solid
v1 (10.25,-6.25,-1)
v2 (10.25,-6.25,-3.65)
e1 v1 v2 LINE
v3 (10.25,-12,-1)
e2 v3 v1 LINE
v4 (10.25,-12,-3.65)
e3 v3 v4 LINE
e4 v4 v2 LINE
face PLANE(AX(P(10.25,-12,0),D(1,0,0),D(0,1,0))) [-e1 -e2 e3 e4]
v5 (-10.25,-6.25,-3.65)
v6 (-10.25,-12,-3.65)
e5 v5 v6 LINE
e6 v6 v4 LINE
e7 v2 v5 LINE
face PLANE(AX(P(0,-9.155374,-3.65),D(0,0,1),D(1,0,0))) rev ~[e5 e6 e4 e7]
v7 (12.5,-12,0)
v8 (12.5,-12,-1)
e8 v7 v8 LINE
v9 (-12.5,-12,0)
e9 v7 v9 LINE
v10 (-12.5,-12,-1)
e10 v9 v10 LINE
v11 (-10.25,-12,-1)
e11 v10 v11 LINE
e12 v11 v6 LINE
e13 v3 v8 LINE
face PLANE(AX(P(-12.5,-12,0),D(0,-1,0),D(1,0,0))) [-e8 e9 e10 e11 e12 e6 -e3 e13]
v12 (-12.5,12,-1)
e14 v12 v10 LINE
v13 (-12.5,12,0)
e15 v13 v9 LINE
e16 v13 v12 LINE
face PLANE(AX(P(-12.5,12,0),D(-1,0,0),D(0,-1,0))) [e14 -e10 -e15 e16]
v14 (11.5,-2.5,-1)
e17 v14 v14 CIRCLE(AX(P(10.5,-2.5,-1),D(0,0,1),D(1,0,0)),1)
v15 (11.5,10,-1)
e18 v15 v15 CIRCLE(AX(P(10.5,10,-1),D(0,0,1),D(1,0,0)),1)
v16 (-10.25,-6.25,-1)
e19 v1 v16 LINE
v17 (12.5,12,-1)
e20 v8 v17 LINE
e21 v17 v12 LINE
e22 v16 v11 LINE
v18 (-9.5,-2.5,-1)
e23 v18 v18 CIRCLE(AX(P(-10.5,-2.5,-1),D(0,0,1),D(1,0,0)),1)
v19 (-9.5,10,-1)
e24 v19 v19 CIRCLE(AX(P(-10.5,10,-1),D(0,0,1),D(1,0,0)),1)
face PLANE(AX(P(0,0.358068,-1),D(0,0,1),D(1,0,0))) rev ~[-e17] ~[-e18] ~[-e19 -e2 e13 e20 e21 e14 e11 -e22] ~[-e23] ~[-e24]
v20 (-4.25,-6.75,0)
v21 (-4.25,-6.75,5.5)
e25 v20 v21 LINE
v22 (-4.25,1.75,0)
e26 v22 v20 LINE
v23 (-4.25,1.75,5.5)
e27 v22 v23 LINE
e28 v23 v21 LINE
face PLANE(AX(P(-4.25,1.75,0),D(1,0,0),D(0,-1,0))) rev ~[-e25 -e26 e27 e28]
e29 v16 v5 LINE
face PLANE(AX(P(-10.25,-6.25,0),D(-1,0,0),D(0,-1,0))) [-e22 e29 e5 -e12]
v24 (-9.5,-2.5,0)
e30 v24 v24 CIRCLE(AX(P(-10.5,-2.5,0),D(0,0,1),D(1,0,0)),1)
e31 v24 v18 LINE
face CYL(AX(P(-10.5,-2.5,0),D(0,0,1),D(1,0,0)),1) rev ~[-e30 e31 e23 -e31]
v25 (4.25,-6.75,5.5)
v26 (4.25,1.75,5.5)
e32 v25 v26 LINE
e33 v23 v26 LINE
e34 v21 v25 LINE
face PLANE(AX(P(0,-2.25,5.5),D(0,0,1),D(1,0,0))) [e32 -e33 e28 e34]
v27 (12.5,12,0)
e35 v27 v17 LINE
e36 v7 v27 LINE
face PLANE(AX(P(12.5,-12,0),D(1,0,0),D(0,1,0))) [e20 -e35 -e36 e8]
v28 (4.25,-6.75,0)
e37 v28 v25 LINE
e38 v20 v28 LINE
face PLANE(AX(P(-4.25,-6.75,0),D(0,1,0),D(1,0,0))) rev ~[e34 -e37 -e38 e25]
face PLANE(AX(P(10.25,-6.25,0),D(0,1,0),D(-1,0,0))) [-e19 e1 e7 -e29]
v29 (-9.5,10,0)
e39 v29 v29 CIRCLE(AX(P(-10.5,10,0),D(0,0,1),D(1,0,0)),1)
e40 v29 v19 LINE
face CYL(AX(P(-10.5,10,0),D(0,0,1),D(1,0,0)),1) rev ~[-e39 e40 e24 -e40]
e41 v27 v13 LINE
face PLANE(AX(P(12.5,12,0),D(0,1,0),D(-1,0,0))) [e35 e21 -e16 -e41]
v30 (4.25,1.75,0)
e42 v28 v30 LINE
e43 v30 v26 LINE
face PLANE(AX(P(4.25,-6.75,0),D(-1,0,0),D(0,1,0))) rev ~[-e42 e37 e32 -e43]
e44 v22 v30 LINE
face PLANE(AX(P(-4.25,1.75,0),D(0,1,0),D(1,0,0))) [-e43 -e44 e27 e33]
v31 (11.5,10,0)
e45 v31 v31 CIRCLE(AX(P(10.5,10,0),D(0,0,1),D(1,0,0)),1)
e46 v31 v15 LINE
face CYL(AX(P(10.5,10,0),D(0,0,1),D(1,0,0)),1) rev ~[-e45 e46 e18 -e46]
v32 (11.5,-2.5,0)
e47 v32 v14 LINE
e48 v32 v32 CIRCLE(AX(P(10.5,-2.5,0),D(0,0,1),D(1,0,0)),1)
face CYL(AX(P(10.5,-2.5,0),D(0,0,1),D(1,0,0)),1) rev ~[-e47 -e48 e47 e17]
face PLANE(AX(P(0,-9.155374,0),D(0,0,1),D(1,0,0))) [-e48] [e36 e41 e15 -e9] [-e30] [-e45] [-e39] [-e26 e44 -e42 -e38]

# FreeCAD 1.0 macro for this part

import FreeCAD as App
import Part
import Sketcher

doc = App.newDocument("Part")
body = doc.addObject("PartDesign::Body", "Body")

# Sketch on XY plane
sketch1 = body.newObject("Sketcher::SketchObject", "Sketch")
sketch1.AttachmentSupport = (doc.getObject("XY_Plane"), [""])
sketch1.MapMode = "FlatFace"
sketch1.addGeometry([
    Part.LineSegment(App.Vector(12.5, -12, 0), App.Vector(12.5, 12, 0)),  # 0
    Part.LineSegment(App.Vector(12.5, 12, 0), App.Vector(-12.5, 12, 0)),  # 1
    Part.LineSegment(App.Vector(-12.5, 12, 0), App.Vector(-12.5, -12, 0)),  # 2
    Part.LineSegment(App.Vector(-12.5, -12, 0), App.Vector(12.5, -12, 0)),  # 3
    Part.Circle(App.Vector(-10.5, -2.5, 0), App.Vector(0, 0, 1), 1),  # 4
    Part.Circle(App.Vector(10.5, -2.5, 0), App.Vector(0, 0, 1), 1),  # 5
    Part.Circle(App.Vector(-10.5, 10, 0), App.Vector(0, 0, 1), 1),  # 6
    Part.Circle(App.Vector(10.5, 10, 0), App.Vector(0, 0, 1), 1),  # 7
], False)
sketch1.addConstraint([
    Sketcher.Constraint("Coincident", 0, 2, 1, 1),
    Sketcher.Constraint("Coincident", 1, 2, 2, 1),
    Sketcher.Constraint("Coincident", 2, 2, 3, 1),
    Sketcher.Constraint("Coincident", 3, 2, 0, 1),
    Sketcher.Constraint("Vertical", 0),
    Sketcher.Constraint("Horizontal", 1),
    Sketcher.Constraint("Vertical", 2),
    Sketcher.Constraint("Horizontal", 3),
    Sketcher.Constraint("Equal", 4, 5),
    Sketcher.Constraint("Equal", 5, 6),
    Sketcher.Constraint("Equal", 6, 7),
    Sketcher.Constraint("Symmetric", 0, 2, 2, 2, -1, 1),
    Sketcher.Constraint("Symmetric", 4, 3, 5, 3, -2),
    Sketcher.Constraint("Symmetric", 6, 3, 7, 3, -2),
    Sketcher.Constraint("Vertical", 4, 3, 6, 3),
    Sketcher.Constraint("Diameter", 4, 2.0),
    Sketcher.Constraint("DistanceX", 1, 2, 1, 1, 25.0),
    Sketcher.Constraint("DistanceY", 0, 1, 0, 2, 24.0),
    Sketcher.Constraint("DistanceY", -1, 1, 6, 3, 10.0),
    Sketcher.Constraint("DistanceX", 4, 3, 5, 3, 21.0),
    Sketcher.Constraint("DistanceY", 4, 3, -1, 1, 2.5),
])
pad1 = body.newObject("PartDesign::Pad", "Pad")
pad1.Profile = sketch1
pad1.Length = 1
pad1.Reversed = True

# Sketch on XY plane
sketch2 = body.newObject("Sketcher::SketchObject", "Sketch001")
sketch2.AttachmentSupport = (doc.getObject("XY_Plane"), [""])
sketch2.MapMode = "FlatFace"
sketch2.addGeometry([
    Part.LineSegment(App.Vector(-10, -12, 0), App.Vector(10, -12, 0)),
    Part.LineSegment(App.Vector(10, -12, 0), App.Vector(10, -6, 0)),
    Part.LineSegment(App.Vector(10, -6, 0), App.Vector(-10, -6, 0)),
    Part.LineSegment(App.Vector(-10, -6, 0), App.Vector(-10, -12, 0)),
], False)
sketch2.addConstraint([
    Sketcher.Constraint("Coincident", 0, 2, 1, 1),
    Sketcher.Constraint("Coincident", 1, 2, 2, 1),
    Sketcher.Constraint("Coincident", 2, 2, 3, 1),
    Sketcher.Constraint("Coincident", 3, 2, 0, 1),
    Sketcher.Constraint("Horizontal", 0),
    Sketcher.Constraint("Vertical", 1),
    Sketcher.Constraint("Horizontal", 2),
    Sketcher.Constraint("Vertical", 3),
    Sketcher.Constraint("DistanceX", 0, 1, 0, 2, 20.5),
    Sketcher.Constraint("DistanceY", 0, 2, -1, 1, 12.0),
    Sketcher.Constraint("DistanceY", 1, 1, 1, 2, 5.75),
    Sketcher.Constraint("DistanceX", -1, 1, 0, 2, 10.25),
])
pad2 = body.newObject("PartDesign::Pad", "Pad001")
pad2.Profile = sketch2
pad2.Length = 3.65
pad2.Reversed = True

# Sketch on XY plane
sketch3 = body.newObject("Sketcher::SketchObject", "Sketch002")
sketch3.AttachmentSupport = (doc.getObject("XY_Plane"), [""])
sketch3.MapMode = "FlatFace"
sketch3.addGeometry([
    Part.LineSegment(App.Vector(-4, 2, 0), App.Vector(-4, -7, 0)),
    Part.LineSegment(App.Vector(-4, -7, 0), App.Vector(4, -7, 0)),
    Part.LineSegment(App.Vector(4, -7, 0), App.Vector(4, 2, 0)),
    Part.LineSegment(App.Vector(4, 2, 0), App.Vector(-4, 2, 0)),
], False)
sketch3.addConstraint([
    Sketcher.Constraint("Coincident", 0, 2, 1, 1),
    Sketcher.Constraint("Coincident", 1, 2, 2, 1),
    Sketcher.Constraint("Coincident", 2, 2, 3, 1),
    Sketcher.Constraint("Coincident", 3, 2, 0, 1),
    Sketcher.Constraint("Vertical", 0),
    Sketcher.Constraint("Horizontal", 1),
    Sketcher.Constraint("Vertical", 2),
    Sketcher.Constraint("Horizontal", 3),
    Sketcher.Constraint("Equal", 3, 0),
    Sketcher.Constraint("DistanceX", 1, 1, 1, 2, 8.5),
    Sketcher.Constraint("DistanceX", 0, 2, -1, 1, 4.25),
    Sketcher.Constraint("DistanceY", 0, 2, -1, 1, 6.75),
])
pad3 = body.newObject("PartDesign::Pad", "Pad002")
pad3.Profile = sketch3
pad3.Length = 5.5

doc.recompute()
